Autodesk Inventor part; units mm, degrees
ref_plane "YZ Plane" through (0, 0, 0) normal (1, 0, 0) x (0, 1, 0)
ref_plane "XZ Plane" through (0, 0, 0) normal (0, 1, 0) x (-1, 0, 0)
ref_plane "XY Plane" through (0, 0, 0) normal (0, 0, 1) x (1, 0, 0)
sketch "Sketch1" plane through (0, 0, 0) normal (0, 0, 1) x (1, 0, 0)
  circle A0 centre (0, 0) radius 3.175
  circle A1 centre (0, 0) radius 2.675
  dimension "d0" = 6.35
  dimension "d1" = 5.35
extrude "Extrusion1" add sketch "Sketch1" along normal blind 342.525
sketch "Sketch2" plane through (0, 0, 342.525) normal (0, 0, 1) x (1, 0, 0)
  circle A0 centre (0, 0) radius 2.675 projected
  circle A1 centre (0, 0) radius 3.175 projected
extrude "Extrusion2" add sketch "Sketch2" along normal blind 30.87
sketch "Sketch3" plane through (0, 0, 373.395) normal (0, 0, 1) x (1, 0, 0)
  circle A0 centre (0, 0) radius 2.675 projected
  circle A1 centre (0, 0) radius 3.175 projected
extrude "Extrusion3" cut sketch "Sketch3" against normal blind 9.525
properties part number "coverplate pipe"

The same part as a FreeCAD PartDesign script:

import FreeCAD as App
import Part
import Sketcher
Q = App.Units.Quantity

doc = App.newDocument("Part")
body = doc.addObject("PartDesign::Body", "Body")

# Sketch on XY plane
sketch1 = body.newObject("Sketcher::SketchObject", "Sketch")
sketch1.AttachmentSupport = (doc.getObject("XY_Plane"), [""])
sketch1.MapMode = "FlatFace"
sketch1.addGeometry([
    Part.Circle(App.Vector(0, 0, 0), App.Vector(0, 0, 1), 3.175),
    Part.Circle(App.Vector(0, 0, 0), App.Vector(0, 0, 1), 2.675),
], False)
sketch1.addConstraint([
    Sketcher.Constraint("Coincident", 0, 3, -1, 1),
    Sketcher.Constraint("Coincident", 1, 3, -1, 1),
    Sketcher.Constraint("Diameter", 0, Q("0.25 in")),
    Sketcher.Constraint("Diameter", 1, Q("5.35 mm")),
])
pad1 = body.newObject("PartDesign::Pad", "Pad")
pad1.Profile = sketch1
pad1.Length = 342.525

# Sketch on XY plane
sketch2 = body.newObject("Sketcher::SketchObject", "Sketch001")
sketch2.AttachmentSupport = (doc.getObject("XY_Plane"), [""])
sketch2.MapMode = "FlatFace"
sketch2.AttachmentOffset = App.Placement(App.Vector(0, 0, 342.525), App.Rotation())
sketch2.addGeometry([
    Part.Circle(App.Vector(0, 0, 0), App.Vector(0, 0, 1), 3.175),
    Part.Circle(App.Vector(0, 0, 0), App.Vector(0, 0, 1), 2.675),
], False)
sketch2.addConstraint([
    Sketcher.Constraint("Coincident", 0, 3, -1, 1),
    Sketcher.Constraint("Coincident", 1, 3, -1, 1),
    Sketcher.Constraint("Diameter", 0, Q("0.25 in")),
    Sketcher.Constraint("Diameter", 1, Q("5.35 mm")),
])
pad2 = body.newObject("PartDesign::Pad", "Pad001")
pad2.Profile = sketch2
pad2.Length = 30.87

# Sketch on XY plane
sketch3 = body.newObject("Sketcher::SketchObject", "Sketch002")
sketch3.AttachmentSupport = (doc.getObject("XY_Plane"), [""])
sketch3.MapMode = "FlatFace"
sketch3.AttachmentOffset = App.Placement(App.Vector(0, 0, 14.7005906 * 25.4), App.Rotation())
sketch3.addGeometry([
    Part.Circle(App.Vector(0, 0, 0), App.Vector(0, 0, 1), 3.175),
    Part.Circle(App.Vector(0, 0, 0), App.Vector(0, 0, 1), 2.675),
], False)
sketch3.addConstraint([
    Sketcher.Constraint("Coincident", 0, 3, -1, 1),
    Sketcher.Constraint("Coincident", 1, 3, -1, 1),
    Sketcher.Constraint("Diameter", 0, Q("0.25 in")),
    Sketcher.Constraint("Diameter", 1, Q("5.35 mm")),
])
pocket1 = body.newObject("PartDesign::Pocket", "Pocket")
pocket1.Profile = sketch3
pocket1.Length = Q("0.375 in")

doc.recompute()
